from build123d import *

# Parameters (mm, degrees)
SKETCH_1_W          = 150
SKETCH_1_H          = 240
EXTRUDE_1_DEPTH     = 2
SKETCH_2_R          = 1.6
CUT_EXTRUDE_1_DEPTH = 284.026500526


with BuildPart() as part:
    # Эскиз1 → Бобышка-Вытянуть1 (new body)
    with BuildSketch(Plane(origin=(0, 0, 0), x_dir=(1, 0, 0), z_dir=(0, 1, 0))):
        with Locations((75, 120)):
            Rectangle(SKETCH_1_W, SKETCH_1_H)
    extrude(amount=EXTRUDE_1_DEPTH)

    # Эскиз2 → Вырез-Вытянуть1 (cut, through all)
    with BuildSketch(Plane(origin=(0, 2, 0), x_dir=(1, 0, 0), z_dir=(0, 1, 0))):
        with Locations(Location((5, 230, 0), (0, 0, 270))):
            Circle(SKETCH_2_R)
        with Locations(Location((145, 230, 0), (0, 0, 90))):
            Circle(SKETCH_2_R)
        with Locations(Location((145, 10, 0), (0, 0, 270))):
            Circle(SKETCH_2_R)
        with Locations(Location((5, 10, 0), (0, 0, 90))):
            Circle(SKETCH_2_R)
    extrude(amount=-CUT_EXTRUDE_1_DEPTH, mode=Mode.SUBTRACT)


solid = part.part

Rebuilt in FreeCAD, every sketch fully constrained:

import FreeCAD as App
import Part
import Sketcher
from FreeCAD import Vector


def add_polygon(sketch, points):
    """Adds a closed chain of lines whose ends are joined by coincident constraints."""
    first, n = sketch.GeometryCount, len(points)
    for a, b in zip(points, points[1:] + points[:1]):
        sketch.addGeometry(Part.LineSegment(App.Vector(*a, 0), App.Vector(*b, 0)), False)
    for i in range(n):
        sketch.addConstraint(Sketcher.Constraint("Coincident", first + i, 2, first + (i + 1) % n, 1))

doc = App.newDocument("Part")
body = doc.addObject("PartDesign::Body", "Body")

# Sketch on XZ plane
sketch1 = body.newObject("Sketcher::SketchObject", "Sketch")
sketch1.AttachmentSupport = (doc.getObject("XZ_Plane"), [""])
sketch1.MapMode = "FlatFace"
add_polygon(sketch1, [(0, -240), (0, 0), (150, 0), (150, -240)])  # lines 0-3
sketch1.addConstraint(Sketcher.Constraint("Vertical", 0))
sketch1.addConstraint(Sketcher.Constraint("Horizontal", 1))
sketch1.addConstraint(Sketcher.Constraint("Vertical", 2))
sketch1.addConstraint(Sketcher.Constraint("Horizontal", 3))
sketch1.addConstraint(Sketcher.Constraint("Coincident", 0, 2, -1, 1))
sketch1.addConstraint(Sketcher.Constraint("DistanceX", 1, 1, 1, 2, 150.0))
sketch1.addConstraint(Sketcher.Constraint("DistanceY", 0, 1, 0, 2, 240.0))
pad1 = body.newObject("PartDesign::Pad", "Pad")
pad1.Profile = sketch1
pad1.Length = 2
pad1.Reversed = True

# Sketch on XZ plane
sketch2 = body.newObject("Sketcher::SketchObject", "Sketch001")
sketch2.AttachmentSupport = (doc.getObject("XZ_Plane"), [""])
sketch2.MapMode = "FlatFace"
sketch2.AttachmentOffset = App.Placement(Vector(0, 0, -2), App.Rotation())
sketch2.addGeometry(Part.Circle(Vector(5, -230, 0), Vector(0, 0, 1), 1.6), False)
sketch2.addGeometry(Part.Circle(Vector(145, -230, 0), Vector(0, 0, 1), 1.6), False)
sketch2.addGeometry(Part.Circle(Vector(145, -10, 0), Vector(0, 0, 1), 1.6), False)
sketch2.addGeometry(Part.Circle(Vector(5, -10, 0), Vector(0, 0, 1), 1.6), False)
sketch2.addConstraint(Sketcher.Constraint("Equal", 0, 1))
sketch2.addConstraint(Sketcher.Constraint("Equal", 1, 2))
sketch2.addConstraint(Sketcher.Constraint("Equal", 2, 3))
sketch2.addConstraint(Sketcher.Constraint("Horizontal", 0, 3, 1, 3))
sketch2.addConstraint(Sketcher.Constraint("Horizontal", 2, 3, 3, 3))
sketch2.addConstraint(Sketcher.Constraint("Vertical", 1, 3, 2, 3))
sketch2.addConstraint(Sketcher.Constraint("Vertical", 0, 3, 3, 3))
sketch2.addConstraint(Sketcher.Constraint("Diameter", 0, 3.2))
sketch2.addConstraint(Sketcher.Constraint("DistanceX", -1, 1, 0, 3, 5.0))
sketch2.addConstraint(Sketcher.Constraint("DistanceY", 0, 3, -1, 1, 230.0))
sketch2.addConstraint(Sketcher.Constraint("DistanceX", -1, 1, 1, 3, 145.0))
sketch2.addConstraint(Sketcher.Constraint("DistanceY", 2, 3, -1, 1, 10.0))
pocket1 = body.newObject("PartDesign::Pocket", "Pocket")
pocket1.Profile = sketch2
pocket1.Type = "ThroughAll"
pocket1.Reversed = True

doc.recompute()
